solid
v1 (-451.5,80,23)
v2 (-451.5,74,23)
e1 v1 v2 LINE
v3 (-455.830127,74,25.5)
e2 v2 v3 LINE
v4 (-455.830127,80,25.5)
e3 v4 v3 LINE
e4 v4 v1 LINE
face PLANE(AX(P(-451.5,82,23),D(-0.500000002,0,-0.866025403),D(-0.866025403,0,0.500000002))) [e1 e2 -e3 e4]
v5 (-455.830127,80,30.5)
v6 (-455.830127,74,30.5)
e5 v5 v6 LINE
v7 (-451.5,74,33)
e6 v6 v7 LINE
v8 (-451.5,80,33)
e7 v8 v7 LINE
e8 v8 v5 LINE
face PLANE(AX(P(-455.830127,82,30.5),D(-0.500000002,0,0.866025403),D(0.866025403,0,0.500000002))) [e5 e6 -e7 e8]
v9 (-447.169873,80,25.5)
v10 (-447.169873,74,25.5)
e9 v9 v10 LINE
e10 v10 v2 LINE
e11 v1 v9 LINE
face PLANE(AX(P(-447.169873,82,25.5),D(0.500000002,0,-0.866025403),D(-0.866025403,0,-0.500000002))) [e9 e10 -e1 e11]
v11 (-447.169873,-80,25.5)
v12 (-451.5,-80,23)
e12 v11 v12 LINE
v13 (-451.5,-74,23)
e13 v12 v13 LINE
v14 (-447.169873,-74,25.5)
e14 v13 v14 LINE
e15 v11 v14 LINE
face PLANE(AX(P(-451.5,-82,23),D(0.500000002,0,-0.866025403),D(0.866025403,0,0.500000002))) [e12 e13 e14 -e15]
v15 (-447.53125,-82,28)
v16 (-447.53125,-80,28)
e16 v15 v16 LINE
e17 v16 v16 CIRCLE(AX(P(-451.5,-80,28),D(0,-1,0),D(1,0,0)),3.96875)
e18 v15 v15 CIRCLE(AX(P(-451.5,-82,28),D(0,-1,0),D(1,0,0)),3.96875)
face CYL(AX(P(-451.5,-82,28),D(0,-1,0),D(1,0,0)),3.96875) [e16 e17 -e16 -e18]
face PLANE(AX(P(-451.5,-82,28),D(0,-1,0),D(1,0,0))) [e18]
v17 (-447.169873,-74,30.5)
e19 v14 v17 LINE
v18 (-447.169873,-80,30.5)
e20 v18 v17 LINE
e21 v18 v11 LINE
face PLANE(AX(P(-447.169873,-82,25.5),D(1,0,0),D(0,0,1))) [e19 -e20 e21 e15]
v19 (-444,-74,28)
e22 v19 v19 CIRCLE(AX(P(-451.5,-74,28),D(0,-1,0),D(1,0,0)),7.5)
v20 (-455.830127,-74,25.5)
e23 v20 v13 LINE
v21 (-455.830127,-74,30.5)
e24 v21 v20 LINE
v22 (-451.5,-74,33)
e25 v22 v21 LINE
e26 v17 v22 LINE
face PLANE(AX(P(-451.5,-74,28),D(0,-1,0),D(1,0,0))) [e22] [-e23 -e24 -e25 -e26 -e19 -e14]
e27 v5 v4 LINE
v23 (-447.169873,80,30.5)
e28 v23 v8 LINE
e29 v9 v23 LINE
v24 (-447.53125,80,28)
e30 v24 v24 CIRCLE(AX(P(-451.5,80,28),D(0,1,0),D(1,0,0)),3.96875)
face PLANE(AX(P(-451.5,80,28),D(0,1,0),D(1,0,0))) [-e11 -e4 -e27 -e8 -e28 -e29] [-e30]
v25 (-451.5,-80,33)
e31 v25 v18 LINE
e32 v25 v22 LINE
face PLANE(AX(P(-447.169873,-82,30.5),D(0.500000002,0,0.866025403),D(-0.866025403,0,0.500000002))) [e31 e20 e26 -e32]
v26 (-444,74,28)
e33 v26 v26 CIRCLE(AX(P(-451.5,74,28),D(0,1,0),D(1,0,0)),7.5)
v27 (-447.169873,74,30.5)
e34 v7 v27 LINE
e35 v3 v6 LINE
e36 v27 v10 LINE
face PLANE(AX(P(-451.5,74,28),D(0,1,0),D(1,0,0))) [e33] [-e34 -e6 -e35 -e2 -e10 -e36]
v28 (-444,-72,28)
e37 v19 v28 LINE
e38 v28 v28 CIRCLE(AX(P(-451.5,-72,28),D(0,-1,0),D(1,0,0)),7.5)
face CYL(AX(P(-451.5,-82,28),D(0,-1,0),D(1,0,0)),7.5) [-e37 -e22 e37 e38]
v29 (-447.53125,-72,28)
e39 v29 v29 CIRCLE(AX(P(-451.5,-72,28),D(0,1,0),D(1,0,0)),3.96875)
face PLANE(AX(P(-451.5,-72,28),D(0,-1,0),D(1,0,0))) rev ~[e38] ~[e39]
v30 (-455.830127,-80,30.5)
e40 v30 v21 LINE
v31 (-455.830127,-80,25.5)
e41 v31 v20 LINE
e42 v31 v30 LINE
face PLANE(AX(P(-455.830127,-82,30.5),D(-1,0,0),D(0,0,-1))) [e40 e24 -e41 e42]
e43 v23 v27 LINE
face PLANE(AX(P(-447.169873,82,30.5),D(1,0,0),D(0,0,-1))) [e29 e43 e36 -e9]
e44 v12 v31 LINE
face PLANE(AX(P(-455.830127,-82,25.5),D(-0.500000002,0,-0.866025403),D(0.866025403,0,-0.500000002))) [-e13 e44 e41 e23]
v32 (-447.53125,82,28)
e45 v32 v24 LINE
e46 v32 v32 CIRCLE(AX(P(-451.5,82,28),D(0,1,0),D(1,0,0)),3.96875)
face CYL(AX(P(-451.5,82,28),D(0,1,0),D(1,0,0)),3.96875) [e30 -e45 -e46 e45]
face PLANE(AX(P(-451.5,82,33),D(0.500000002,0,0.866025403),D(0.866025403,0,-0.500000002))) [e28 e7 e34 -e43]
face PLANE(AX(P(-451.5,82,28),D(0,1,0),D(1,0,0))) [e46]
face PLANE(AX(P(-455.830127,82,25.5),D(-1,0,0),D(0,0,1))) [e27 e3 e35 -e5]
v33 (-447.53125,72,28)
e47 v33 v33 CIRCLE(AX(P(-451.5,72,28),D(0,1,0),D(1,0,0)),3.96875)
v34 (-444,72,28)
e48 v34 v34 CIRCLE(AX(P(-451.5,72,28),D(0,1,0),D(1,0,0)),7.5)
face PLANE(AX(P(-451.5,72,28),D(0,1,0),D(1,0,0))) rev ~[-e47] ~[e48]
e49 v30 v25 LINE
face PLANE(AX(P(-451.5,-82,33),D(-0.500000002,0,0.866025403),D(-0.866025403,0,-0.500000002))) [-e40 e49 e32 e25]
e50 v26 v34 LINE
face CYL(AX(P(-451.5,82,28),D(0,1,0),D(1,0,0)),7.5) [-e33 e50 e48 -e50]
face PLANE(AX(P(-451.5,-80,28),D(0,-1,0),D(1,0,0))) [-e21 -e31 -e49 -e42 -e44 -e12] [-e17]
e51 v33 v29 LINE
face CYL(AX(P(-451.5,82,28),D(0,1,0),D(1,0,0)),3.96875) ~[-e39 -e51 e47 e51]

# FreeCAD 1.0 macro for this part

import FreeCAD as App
import Part
import Sketcher
Q = App.Units.Quantity


def add_polygon(sketch, points):
    """Adds a closed chain of lines whose ends are joined by coincident constraints."""
    first, n = sketch.GeometryCount, len(points)
    for a, b in zip(points, points[1:] + points[:1]):
        sketch.addGeometry(Part.LineSegment(App.Vector(*a, 0), App.Vector(*b, 0)), False)
    for i in range(n):
        sketch.addConstraint(Sketcher.Constraint("Coincident", first + i, 2, first + (i + 1) % n, 1))

doc = App.newDocument("Part")
body = doc.addObject("PartDesign::Body", "Body")

# Sketch on XZ plane
sketch1 = body.newObject("Sketcher::SketchObject", "Sketch")
sketch1.AttachmentSupport = (doc.getObject("XZ_Plane"), [""])
sketch1.MapMode = "FlatFace"
sketch1.AttachmentOffset = App.Placement(App.Vector(0, 0, -82), App.Rotation())
sketch1.addGeometry(Part.Circle(App.Vector(500, 56, 0), App.Vector(0, 0, 1), 4), False)
sketch1.addConstraint([
    Sketcher.Constraint("DistanceX", -1, 1, 0, 3, Q("500 mm")),
    Sketcher.Constraint("DistanceY", -1, 1, 0, 3, Q("56 mm")),
    Sketcher.Constraint("Diameter", 0, Q("7.9375 mm")),
])
pad1 = body.newObject("PartDesign::Pad", "Pad")
pad1.Profile = sketch1
pad1.Length = 164

# Sketch on XZ plane
sketch2 = body.newObject("Sketcher::SketchObject", "Sketch001")
sketch2.AttachmentSupport = (doc.getObject("XZ_Plane"), [""])
sketch2.MapMode = "FlatFace"
sketch2.AttachmentOffset = App.Placement(App.Vector(0, 0, -82), App.Rotation())
sketch2.addGeometry(Part.Circle(App.Vector(500, 56, 0), App.Vector(0, 0, 1), 8), False)
sketch2.addConstraint([
    Sketcher.Constraint("Diameter", 0, Q("15 mm")),
    Sketcher.Constraint("DistanceX", -1, 1, 0, 3, Q("500 mm")),
    Sketcher.Constraint("DistanceY", -1, 1, 0, 3, Q("56 mm")),
])
pad2 = body.newObject("PartDesign::Pad", "Pad001")
pad2.Profile = sketch2
pad2.Length = 10

# Sketch on XZ plane
sketch3 = body.newObject("Sketcher::SketchObject", "Sketch002")
sketch3.AttachmentSupport = (doc.getObject("XZ_Plane"), [""])
sketch3.MapMode = "FlatFace"
sketch3.AttachmentOffset = App.Placement(App.Vector(0, 0, -82), App.Rotation())
sketch3.addGeometry(Part.Circle(App.Vector(500, 56, 0), App.Vector(0, 0, 1), 7.5), False)  # 0
add_polygon(sketch3, [(495.7, 53.5), (500, 51), (504.3, 53.5), (504.3, 58.5), (500, 61), (495.7, 58.5)])  # lines 1-6
sketch3.addConstraint([
    Sketcher.Constraint("Vertical", 3),
    Sketcher.Constraint("Vertical", 6),
    Sketcher.Constraint("Parallel", 1, 4),
    Sketcher.Constraint("Parallel", 2, 5),
    Sketcher.Constraint("Horizontal", 3, 2, 5, 2),
    Sketcher.Constraint("Horizontal", 2, 2, 6, 2),
    Sketcher.Constraint("Vertical", 0, 3, 1, 2),
    Sketcher.Constraint("Vertical", 1, 2, 4, 2),
    Sketcher.Constraint("Diameter", 0, Q("15 mm")),
    Sketcher.Constraint("DistanceY", 3, 1, 3, 2, Q("5 mm")),
    Sketcher.Constraint("Angle", 1, Q("-30 deg")),
    Sketcher.Constraint("Distance", 1, Q("5 mm")),
    Sketcher.Constraint("DistanceX", -1, 1, 0, 3, Q("500 mm")),
    Sketcher.Constraint("DistanceY", -1, 1, 0, 3, Q("56 mm")),
    Sketcher.Constraint("DistanceY", -1, 1, 1, 2, Q("51 mm")),
])
pocket1 = body.newObject("PartDesign::Pocket", "Pocket")
pocket1.Profile = sketch3
pocket1.Length = 8
pocket1.Reversed = True

# Sketch on XZ plane
sketch4 = body.newObject("Sketcher::SketchObject", "Sketch003")
sketch4.AttachmentSupport = (doc.getObject("XZ_Plane"), [""])
sketch4.MapMode = "FlatFace"
sketch4.AttachmentOffset = App.Placement(App.Vector(0, 0, -82), App.Rotation())
sketch4.addGeometry([
    Part.Circle(App.Vector(500, 56, 0), App.Vector(0, 0, 1), 7.5),
    Part.Circle(App.Vector(500, 56, 0), App.Vector(0, 0, 1), 4),
], False)
sketch4.addConstraint([
    Sketcher.Constraint("Coincident", 1, 3, 0, 3),
    Sketcher.Constraint("Diameter", 0, Q("15 mm")),
    Sketcher.Constraint("DistanceX", -1, 1, 0, 3, Q("500 mm")),
    Sketcher.Constraint("DistanceY", -1, 1, 0, 3, Q("56 mm")),
    Sketcher.Constraint("Diameter", 1, Q("7.9375 mm")),
])
pocket2 = body.newObject("PartDesign::Pocket", "Pocket001")
pocket2.Profile = sketch4
pocket2.Length = 2
pocket2.Reversed = True

# Sketch on XZ plane
sketch5 = body.newObject("Sketcher::SketchObject", "Sketch004")
sketch5.AttachmentSupport = (doc.getObject("XZ_Plane"), [""])
sketch5.MapMode = "FlatFace"
sketch5.AttachmentOffset = App.Placement(App.Vector(0, 0, 82), App.Rotation())
sketch5.addGeometry(Part.Circle(App.Vector(500, 56, 0), App.Vector(0, 0, 1), 8), False)
sketch5.addConstraint([
    Sketcher.Constraint("Diameter", 0, Q("15 mm")),
    Sketcher.Constraint("DistanceX", -1, 1, 0, 3, Q("500 mm")),
    Sketcher.Constraint("DistanceY", -1, 1, 0, 3, Q("56 mm")),
])
pad3 = body.newObject("PartDesign::Pad", "Pad002")
pad3.Profile = sketch5
pad3.Length = 10
pad3.Reversed = True

# Sketch on XZ plane
sketch6 = body.newObject("Sketcher::SketchObject", "Sketch005")
sketch6.AttachmentSupport = (doc.getObject("XZ_Plane"), [""])
sketch6.MapMode = "FlatFace"
sketch6.AttachmentOffset = App.Placement(App.Vector(0, 0, 82), App.Rotation())
sketch6.addGeometry(Part.Circle(App.Vector(500, 56, 0), App.Vector(0, 0, 1), 7.5), False)  # 0
add_polygon(sketch6, [(495.7, 58.5), (500, 61), (504.3, 58.5), (504.3, 53.5), (500, 51), (495.7, 53.5)])  # lines 1-6
sketch6.addConstraint([
    Sketcher.Constraint("Vertical", 3),
    Sketcher.Constraint("Vertical", 6),
    Sketcher.Constraint("Parallel", 1, 4),
    Sketcher.Constraint("Parallel", 2, 5),
    Sketcher.Constraint("Horizontal", 3, 2, 5, 2),
    Sketcher.Constraint("Horizontal", 2, 2, 6, 2),
    Sketcher.Constraint("Vertical", 0, 3, 1, 2),
    Sketcher.Constraint("Vertical", 1, 2, 4, 2),
    Sketcher.Constraint("Diameter", 0, Q("15 mm")),
    Sketcher.Constraint("DistanceY", 3, 2, 3, 1, Q("5 mm")),
    Sketcher.Constraint("Angle", 1, Q("30 deg")),
    Sketcher.Constraint("Distance", 1, Q("5 mm")),
    Sketcher.Constraint("DistanceX", -1, 1, 0, 3, Q("500 mm")),
    Sketcher.Constraint("DistanceY", -1, 1, 0, 3, Q("56 mm")),
    Sketcher.Constraint("DistanceY", -1, 1, 1, 2, Q("61 mm")),
])
pocket3 = body.newObject("PartDesign::Pocket", "Pocket002")
pocket3.Profile = sketch6
pocket3.Length = 8

# Sketch on XZ plane
sketch7 = body.newObject("Sketcher::SketchObject", "Sketch006")
sketch7.AttachmentSupport = (doc.getObject("XZ_Plane"), [""])
sketch7.MapMode = "FlatFace"
sketch7.AttachmentOffset = App.Placement(App.Vector(0, 0, 82), App.Rotation())
sketch7.addGeometry([
    Part.Circle(App.Vector(500, 56, 0), App.Vector(0, 0, 1), 7.5),
    Part.Circle(App.Vector(500, 56, 0), App.Vector(0, 0, 1), 4),
], False)
sketch7.addConstraint([
    Sketcher.Constraint("Coincident", 1, 3, 0, 3),
    Sketcher.Constraint("Diameter", 0, Q("15 mm")),
    Sketcher.Constraint("DistanceX", -1, 1, 0, 3, Q("500 mm")),
    Sketcher.Constraint("DistanceY", -1, 1, 0, 3, Q("56 mm")),
    Sketcher.Constraint("Diameter", 1, Q("7.9375 mm")),
])
pocket4 = body.newObject("PartDesign::Pocket", "Pocket003")
pocket4.Profile = sketch7
pocket4.Length = 2
body2 = doc.addObject("PartDesign::Body", "Body001")
doc.recompute()

body.Placement = App.Placement(App.Vector(-951.5, 0, -28), App.Rotation(App.Vector(0, 0, 1), 0))
boolean = body2.newObject("PartDesign::Boolean", "Boolean")
boolean.Type = "Fuse"
boolean.addObjects([body])

doc.recompute()
